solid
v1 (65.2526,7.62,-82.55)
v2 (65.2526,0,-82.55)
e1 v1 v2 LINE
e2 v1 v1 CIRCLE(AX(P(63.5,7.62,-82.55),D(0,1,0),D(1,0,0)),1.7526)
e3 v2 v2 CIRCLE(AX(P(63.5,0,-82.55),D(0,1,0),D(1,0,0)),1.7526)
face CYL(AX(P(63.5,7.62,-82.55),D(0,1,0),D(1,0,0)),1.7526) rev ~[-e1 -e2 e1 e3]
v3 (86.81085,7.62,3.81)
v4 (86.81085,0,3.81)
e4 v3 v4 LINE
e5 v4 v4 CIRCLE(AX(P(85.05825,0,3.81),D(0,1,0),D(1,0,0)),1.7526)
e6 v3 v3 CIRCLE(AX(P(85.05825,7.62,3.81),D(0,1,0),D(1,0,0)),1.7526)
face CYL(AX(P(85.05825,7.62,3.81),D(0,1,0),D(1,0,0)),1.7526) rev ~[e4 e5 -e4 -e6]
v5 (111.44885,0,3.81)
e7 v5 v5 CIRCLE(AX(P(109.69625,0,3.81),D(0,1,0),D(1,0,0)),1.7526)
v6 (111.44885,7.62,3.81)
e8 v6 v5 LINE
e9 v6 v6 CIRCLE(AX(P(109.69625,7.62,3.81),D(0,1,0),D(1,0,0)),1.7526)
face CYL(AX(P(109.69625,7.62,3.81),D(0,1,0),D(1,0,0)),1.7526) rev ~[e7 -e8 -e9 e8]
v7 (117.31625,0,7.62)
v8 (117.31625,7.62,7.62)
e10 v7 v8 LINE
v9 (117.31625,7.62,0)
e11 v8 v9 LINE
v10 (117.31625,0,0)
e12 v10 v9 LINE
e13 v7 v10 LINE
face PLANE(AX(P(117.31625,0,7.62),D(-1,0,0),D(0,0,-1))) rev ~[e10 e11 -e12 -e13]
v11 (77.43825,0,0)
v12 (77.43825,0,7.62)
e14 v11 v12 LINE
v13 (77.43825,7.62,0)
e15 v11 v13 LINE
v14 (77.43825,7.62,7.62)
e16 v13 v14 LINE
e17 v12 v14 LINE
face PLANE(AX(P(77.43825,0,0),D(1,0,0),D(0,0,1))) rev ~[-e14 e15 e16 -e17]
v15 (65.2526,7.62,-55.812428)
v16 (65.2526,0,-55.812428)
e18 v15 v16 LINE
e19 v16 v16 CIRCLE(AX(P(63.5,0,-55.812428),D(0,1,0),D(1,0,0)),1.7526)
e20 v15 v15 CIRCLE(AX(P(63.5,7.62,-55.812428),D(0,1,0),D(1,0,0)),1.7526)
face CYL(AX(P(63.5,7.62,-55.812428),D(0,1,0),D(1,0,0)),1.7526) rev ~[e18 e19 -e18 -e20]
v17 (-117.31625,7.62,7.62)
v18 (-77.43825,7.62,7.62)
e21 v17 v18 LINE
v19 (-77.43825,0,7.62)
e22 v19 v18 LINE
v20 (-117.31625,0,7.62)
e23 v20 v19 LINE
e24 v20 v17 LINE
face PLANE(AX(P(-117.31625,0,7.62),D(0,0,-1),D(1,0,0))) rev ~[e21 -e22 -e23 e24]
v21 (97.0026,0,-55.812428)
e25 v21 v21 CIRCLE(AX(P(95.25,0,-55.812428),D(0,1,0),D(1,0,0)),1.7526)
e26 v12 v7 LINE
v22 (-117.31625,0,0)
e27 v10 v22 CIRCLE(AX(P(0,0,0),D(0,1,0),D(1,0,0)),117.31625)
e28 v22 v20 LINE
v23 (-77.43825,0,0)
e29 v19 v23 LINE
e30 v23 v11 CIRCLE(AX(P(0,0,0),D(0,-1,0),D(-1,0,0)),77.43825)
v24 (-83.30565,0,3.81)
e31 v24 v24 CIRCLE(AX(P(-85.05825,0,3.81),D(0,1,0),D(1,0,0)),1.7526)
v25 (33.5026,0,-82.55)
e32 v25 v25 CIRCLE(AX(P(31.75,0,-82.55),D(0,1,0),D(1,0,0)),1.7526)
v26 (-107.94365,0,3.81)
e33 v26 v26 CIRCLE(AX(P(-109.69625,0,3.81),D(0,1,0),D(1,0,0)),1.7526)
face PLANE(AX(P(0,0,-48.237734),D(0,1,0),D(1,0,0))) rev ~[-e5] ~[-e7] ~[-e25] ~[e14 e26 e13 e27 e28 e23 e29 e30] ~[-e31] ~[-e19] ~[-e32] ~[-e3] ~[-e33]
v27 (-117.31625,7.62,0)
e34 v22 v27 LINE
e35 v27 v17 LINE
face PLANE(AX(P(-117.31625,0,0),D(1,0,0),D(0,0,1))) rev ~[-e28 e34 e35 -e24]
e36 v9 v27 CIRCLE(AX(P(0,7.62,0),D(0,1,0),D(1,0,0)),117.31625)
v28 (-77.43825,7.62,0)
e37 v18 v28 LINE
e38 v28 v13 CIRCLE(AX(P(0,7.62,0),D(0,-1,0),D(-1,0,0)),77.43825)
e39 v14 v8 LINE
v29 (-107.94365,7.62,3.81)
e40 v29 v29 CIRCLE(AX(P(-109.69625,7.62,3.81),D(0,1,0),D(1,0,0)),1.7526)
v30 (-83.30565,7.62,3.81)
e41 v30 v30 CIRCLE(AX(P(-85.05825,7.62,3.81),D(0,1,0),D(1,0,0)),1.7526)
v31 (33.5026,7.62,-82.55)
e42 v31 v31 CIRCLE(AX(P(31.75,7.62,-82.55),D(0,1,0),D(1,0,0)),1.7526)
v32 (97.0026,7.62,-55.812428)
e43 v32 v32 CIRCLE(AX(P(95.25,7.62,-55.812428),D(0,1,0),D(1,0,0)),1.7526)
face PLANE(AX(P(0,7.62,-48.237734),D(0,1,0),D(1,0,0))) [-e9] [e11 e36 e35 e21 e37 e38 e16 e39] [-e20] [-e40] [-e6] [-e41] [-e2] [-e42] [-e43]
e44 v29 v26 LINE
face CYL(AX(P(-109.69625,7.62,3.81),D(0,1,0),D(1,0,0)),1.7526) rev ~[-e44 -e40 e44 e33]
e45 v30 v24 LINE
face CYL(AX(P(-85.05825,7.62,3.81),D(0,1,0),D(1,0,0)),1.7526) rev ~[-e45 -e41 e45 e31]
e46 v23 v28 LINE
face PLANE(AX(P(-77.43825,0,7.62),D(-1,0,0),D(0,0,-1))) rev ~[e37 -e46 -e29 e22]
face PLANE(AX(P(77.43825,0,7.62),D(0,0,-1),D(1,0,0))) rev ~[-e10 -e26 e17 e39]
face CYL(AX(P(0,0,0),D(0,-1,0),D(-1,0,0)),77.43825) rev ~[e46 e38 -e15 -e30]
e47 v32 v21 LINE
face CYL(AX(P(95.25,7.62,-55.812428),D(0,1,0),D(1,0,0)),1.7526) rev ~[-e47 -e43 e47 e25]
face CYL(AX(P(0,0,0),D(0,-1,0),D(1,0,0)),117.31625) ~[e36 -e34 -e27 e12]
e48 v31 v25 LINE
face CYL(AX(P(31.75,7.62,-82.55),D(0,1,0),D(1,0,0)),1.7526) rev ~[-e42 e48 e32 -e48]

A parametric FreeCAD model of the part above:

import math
import FreeCAD as App
import Part
import Sketcher
from FreeCAD import Vector
Q = App.Units.Quantity

doc = App.newDocument("Part")
body = doc.addObject("PartDesign::Body", "Body")

sketch1 = body.newObject("Sketcher::SketchObject", "Sketch")
sketch1.AttachmentSupport = (doc.getObject("XZ_Plane"), [""])
sketch1.MapMode = "FlatFace"
sketch1.addGeometry([
    Part.LineSegment(Vector(-117, 0, 0), Vector(-117, 8, 0)),
    Part.LineSegment(Vector(-117, 8, 0), Vector(-77, 8, 0)),
    Part.LineSegment(Vector(-77, 8, 0), Vector(-77, 0, 0)),
    Part.ArcOfCircle(Part.Circle(Vector(0, 0, 0), Vector(0, 0, 1), 77), math.radians(180), math.radians(360)),
    Part.LineSegment(Vector(77, 0, 0), Vector(77, 8, 0)),
    Part.LineSegment(Vector(77, 8, 0), Vector(117, 8, 0)),
    Part.LineSegment(Vector(117, 8, 0), Vector(117, 0, 0)),
    Part.ArcOfCircle(Part.Circle(Vector(0, 0, 0), Vector(0, 0, 1), 117), math.radians(180), math.radians(360)),
], False)
sketch1.addConstraint([
    Sketcher.Constraint("Coincident", 0, 2, 1, 1),
    Sketcher.Constraint("Coincident", 1, 2, 2, 1),
    Sketcher.Constraint("Tangent", 2, 2, 3, 1),
    Sketcher.Constraint("Tangent", 3, 2, 4, 1),
    Sketcher.Constraint("Coincident", 4, 2, 5, 1),
    Sketcher.Constraint("Coincident", 5, 2, 6, 1),
    Sketcher.Constraint("Tangent", 6, 2, 7, 2),
    Sketcher.Constraint("Tangent", 7, 1, 0, 1),
    Sketcher.Constraint("Vertical", 0),
    Sketcher.Constraint("Horizontal", 1),
    Sketcher.Constraint("Vertical", 2),
    Sketcher.Constraint("Vertical", 4),
    Sketcher.Constraint("Horizontal", 5),
    Sketcher.Constraint("Vertical", 6),
    Sketcher.Constraint("Coincident", 3, 3, -1, 1),
    Sketcher.Constraint("Coincident", 7, 3, -1, 1),
    Sketcher.Constraint("Horizontal", 1, 2, 4, 2),
    Sketcher.Constraint("DistanceY", 0, 1, 0, 2, Q("0.3 in")),
    Sketcher.Constraint("DistanceX", 1, 1, 1, 2, Q("1.57 in")),
    Sketcher.Constraint("Radius", 3, Q("77.43825 mm")),
])
pad1 = body.newObject("PartDesign::Pad", "Pad")
pad1.Profile = sketch1
pad1.Length = Q("0.3 in")
pad1.Reversed = True

sketch2 = body.newObject("Sketcher::SketchObject", "Sketch001")
sketch2.AttachmentSupport = (doc.getObject("XZ_Plane"), [""])
sketch2.MapMode = "FlatFace"
sketch2.AttachmentOffset = App.Placement(Vector(0, 0, -0.3 * 25.4), App.Rotation())
sketch2.addGeometry(Part.Circle(Vector(-109.7, 3.8, 0), Vector(0, 0, 1), 1.8), False)
sketch2.addConstraint([
    Sketcher.Constraint("Diameter", 0, Q("0.138 in")),
    Sketcher.Constraint("DistanceY", -1, 1, 0, 3, Q("0.15 in")),
    Sketcher.Constraint("DistanceX", 0, 3, -1, 1, Q("109.69625 mm")),
])
pocket1 = body.newObject("PartDesign::Pocket", "Pocket")
pocket1.Profile = sketch2
pocket1.Type = "UpToFirst"
pocket1.Reversed = True

sketch3 = body.newObject("Sketcher::SketchObject", "Sketch002")
sketch3.AttachmentSupport = (doc.getObject("XZ_Plane"), [""])
sketch3.MapMode = "FlatFace"
sketch3.AttachmentOffset = App.Placement(Vector(0, 0, -0.3 * 25.4), App.Rotation())
sketch3.addGeometry(Part.Circle(Vector(-85.1, 3.8, 0), Vector(0, 0, 1), 1.8), False)
sketch3.addConstraint([
    Sketcher.Constraint("Diameter", 0, Q("0.138 in")),
    Sketcher.Constraint("DistanceY", -1, 1, 0, 3, Q("0.15 in")),
    Sketcher.Constraint("DistanceX", 0, 3, -1, 1, Q("85.05825 mm")),
])
pocket2 = body.newObject("PartDesign::Pocket", "Pocket001")
pocket2.Profile = sketch3
pocket2.Type = "UpToFirst"
pocket2.Reversed = True

sketch4 = body.newObject("Sketcher::SketchObject", "Sketch003")
sketch4.AttachmentSupport = (doc.getObject("XZ_Plane"), [""])
sketch4.MapMode = "FlatFace"
sketch4.AttachmentOffset = App.Placement(Vector(0, 0, -0.3 * 25.4), App.Rotation())
sketch4.addGeometry(Part.Circle(Vector(85.1, 3.8, 0), Vector(0, 0, 1), 1.8), False)
sketch4.addConstraint([
    Sketcher.Constraint("Diameter", 0, Q("0.138 in")),
    Sketcher.Constraint("DistanceY", -1, 1, 0, 3, Q("0.15 in")),
    Sketcher.Constraint("DistanceX", -1, 1, 0, 3, Q("85.05825 mm")),
])
pocket3 = body.newObject("PartDesign::Pocket", "Pocket002")
pocket3.Profile = sketch4
pocket3.Type = "UpToFirst"
pocket3.Reversed = True

sketch5 = body.newObject("Sketcher::SketchObject", "Sketch004")
sketch5.AttachmentSupport = (doc.getObject("XZ_Plane"), [""])
sketch5.MapMode = "FlatFace"
sketch5.AttachmentOffset = App.Placement(Vector(0, 0, -0.3 * 25.4), App.Rotation())
sketch5.addGeometry(Part.Circle(Vector(109.7, 3.8, 0), Vector(0, 0, 1), 1.8), False)
sketch5.addConstraint([
    Sketcher.Constraint("Diameter", 0, Q("0.138 in")),
    Sketcher.Constraint("DistanceY", -1, 1, 0, 3, Q("0.15 in")),
    Sketcher.Constraint("DistanceX", -1, 1, 0, 3, Q("109.69625 mm")),
])
pocket4 = body.newObject("PartDesign::Pocket", "Pocket003")
pocket4.Profile = sketch5
pocket4.Type = "UpToFirst"
pocket4.Reversed = True

sketch6 = body.newObject("Sketcher::SketchObject", "Sketch005")
sketch6.AttachmentSupport = (doc.getObject("XZ_Plane"), [""])
sketch6.MapMode = "FlatFace"
sketch6.AttachmentOffset = App.Placement(Vector(0, 0, -0.3 * 25.4), App.Rotation())
sketch6.addGeometry(Part.Circle(Vector(31.8, -82.5, 0), Vector(0, 0, 1), 1.8), False)
sketch6.addConstraint([
    Sketcher.Constraint("Diameter", 0, Q("0.138 in")),
    Sketcher.Constraint("DistanceX", -1, 1, 0, 3, Q("1.25 in")),
    Sketcher.Constraint("DistanceY", 0, 3, -1, 1, Q("3.25 in")),
])
pocket5 = body.newObject("PartDesign::Pocket", "Pocket004")
pocket5.Profile = sketch6
pocket5.Type = "UpToFirst"
pocket5.Reversed = True

sketch7 = body.newObject("Sketcher::SketchObject", "Sketch006")
sketch7.AttachmentSupport = (doc.getObject("XZ_Plane"), [""])
sketch7.MapMode = "FlatFace"
sketch7.AttachmentOffset = App.Placement(Vector(0, 0, -0.3 * 25.4), App.Rotation())
sketch7.addGeometry(Part.Circle(Vector(63.5, -82.5, 0), Vector(0, 0, 1), 1.8), False)
sketch7.addConstraint([
    Sketcher.Constraint("Diameter", 0, Q("0.138 in")),
    Sketcher.Constraint("DistanceX", -1, 1, 0, 3, Q("2.5 in")),
    Sketcher.Constraint("DistanceY", 0, 3, -1, 1, Q("3.25 in")),
])
pocket6 = body.newObject("PartDesign::Pocket", "Pocket005")
pocket6.Profile = sketch7
pocket6.Type = "UpToFirst"
pocket6.Reversed = True

sketch8 = body.newObject("Sketcher::SketchObject", "Sketch007")
sketch8.AttachmentSupport = (doc.getObject("XZ_Plane"), [""])
sketch8.MapMode = "FlatFace"
sketch8.AttachmentOffset = App.Placement(Vector(0, 0, -0.3 * 25.4), App.Rotation())
sketch8.addGeometry(Part.Circle(Vector(63.5, -55.8, 0), Vector(0, 0, 1), 1.8), False)
sketch8.addConstraint([
    Sketcher.Constraint("Diameter", 0, Q("0.138 in")),
    Sketcher.Constraint("DistanceX", -1, 1, 0, 3, Q("2.5 in")),
    Sketcher.Constraint("DistanceY", 0, 3, -1, 1, Q("55.812428 mm")),
])
pocket7 = body.newObject("PartDesign::Pocket", "Pocket006")
pocket7.Profile = sketch8
pocket7.Type = "UpToFirst"
pocket7.Reversed = True

sketch9 = body.newObject("Sketcher::SketchObject", "Sketch008")
sketch9.AttachmentSupport = (doc.getObject("XZ_Plane"), [""])
sketch9.MapMode = "FlatFace"
sketch9.AttachmentOffset = App.Placement(Vector(0, 0, -0.3 * 25.4), App.Rotation())
sketch9.addGeometry(Part.Circle(Vector(95.2, -55.8, 0), Vector(0, 0, 1), 1.8), False)
sketch9.addConstraint([
    Sketcher.Constraint("Diameter", 0, Q("0.138 in")),
    Sketcher.Constraint("DistanceX", -1, 1, 0, 3, Q("3.75 in")),
    Sketcher.Constraint("DistanceY", 0, 3, -1, 1, Q("55.812428 mm")),
])
pocket8 = body.newObject("PartDesign::Pocket", "Pocket007")
pocket8.Profile = sketch9
pocket8.Type = "UpToFirst"
pocket8.Reversed = True

doc.recompute()
